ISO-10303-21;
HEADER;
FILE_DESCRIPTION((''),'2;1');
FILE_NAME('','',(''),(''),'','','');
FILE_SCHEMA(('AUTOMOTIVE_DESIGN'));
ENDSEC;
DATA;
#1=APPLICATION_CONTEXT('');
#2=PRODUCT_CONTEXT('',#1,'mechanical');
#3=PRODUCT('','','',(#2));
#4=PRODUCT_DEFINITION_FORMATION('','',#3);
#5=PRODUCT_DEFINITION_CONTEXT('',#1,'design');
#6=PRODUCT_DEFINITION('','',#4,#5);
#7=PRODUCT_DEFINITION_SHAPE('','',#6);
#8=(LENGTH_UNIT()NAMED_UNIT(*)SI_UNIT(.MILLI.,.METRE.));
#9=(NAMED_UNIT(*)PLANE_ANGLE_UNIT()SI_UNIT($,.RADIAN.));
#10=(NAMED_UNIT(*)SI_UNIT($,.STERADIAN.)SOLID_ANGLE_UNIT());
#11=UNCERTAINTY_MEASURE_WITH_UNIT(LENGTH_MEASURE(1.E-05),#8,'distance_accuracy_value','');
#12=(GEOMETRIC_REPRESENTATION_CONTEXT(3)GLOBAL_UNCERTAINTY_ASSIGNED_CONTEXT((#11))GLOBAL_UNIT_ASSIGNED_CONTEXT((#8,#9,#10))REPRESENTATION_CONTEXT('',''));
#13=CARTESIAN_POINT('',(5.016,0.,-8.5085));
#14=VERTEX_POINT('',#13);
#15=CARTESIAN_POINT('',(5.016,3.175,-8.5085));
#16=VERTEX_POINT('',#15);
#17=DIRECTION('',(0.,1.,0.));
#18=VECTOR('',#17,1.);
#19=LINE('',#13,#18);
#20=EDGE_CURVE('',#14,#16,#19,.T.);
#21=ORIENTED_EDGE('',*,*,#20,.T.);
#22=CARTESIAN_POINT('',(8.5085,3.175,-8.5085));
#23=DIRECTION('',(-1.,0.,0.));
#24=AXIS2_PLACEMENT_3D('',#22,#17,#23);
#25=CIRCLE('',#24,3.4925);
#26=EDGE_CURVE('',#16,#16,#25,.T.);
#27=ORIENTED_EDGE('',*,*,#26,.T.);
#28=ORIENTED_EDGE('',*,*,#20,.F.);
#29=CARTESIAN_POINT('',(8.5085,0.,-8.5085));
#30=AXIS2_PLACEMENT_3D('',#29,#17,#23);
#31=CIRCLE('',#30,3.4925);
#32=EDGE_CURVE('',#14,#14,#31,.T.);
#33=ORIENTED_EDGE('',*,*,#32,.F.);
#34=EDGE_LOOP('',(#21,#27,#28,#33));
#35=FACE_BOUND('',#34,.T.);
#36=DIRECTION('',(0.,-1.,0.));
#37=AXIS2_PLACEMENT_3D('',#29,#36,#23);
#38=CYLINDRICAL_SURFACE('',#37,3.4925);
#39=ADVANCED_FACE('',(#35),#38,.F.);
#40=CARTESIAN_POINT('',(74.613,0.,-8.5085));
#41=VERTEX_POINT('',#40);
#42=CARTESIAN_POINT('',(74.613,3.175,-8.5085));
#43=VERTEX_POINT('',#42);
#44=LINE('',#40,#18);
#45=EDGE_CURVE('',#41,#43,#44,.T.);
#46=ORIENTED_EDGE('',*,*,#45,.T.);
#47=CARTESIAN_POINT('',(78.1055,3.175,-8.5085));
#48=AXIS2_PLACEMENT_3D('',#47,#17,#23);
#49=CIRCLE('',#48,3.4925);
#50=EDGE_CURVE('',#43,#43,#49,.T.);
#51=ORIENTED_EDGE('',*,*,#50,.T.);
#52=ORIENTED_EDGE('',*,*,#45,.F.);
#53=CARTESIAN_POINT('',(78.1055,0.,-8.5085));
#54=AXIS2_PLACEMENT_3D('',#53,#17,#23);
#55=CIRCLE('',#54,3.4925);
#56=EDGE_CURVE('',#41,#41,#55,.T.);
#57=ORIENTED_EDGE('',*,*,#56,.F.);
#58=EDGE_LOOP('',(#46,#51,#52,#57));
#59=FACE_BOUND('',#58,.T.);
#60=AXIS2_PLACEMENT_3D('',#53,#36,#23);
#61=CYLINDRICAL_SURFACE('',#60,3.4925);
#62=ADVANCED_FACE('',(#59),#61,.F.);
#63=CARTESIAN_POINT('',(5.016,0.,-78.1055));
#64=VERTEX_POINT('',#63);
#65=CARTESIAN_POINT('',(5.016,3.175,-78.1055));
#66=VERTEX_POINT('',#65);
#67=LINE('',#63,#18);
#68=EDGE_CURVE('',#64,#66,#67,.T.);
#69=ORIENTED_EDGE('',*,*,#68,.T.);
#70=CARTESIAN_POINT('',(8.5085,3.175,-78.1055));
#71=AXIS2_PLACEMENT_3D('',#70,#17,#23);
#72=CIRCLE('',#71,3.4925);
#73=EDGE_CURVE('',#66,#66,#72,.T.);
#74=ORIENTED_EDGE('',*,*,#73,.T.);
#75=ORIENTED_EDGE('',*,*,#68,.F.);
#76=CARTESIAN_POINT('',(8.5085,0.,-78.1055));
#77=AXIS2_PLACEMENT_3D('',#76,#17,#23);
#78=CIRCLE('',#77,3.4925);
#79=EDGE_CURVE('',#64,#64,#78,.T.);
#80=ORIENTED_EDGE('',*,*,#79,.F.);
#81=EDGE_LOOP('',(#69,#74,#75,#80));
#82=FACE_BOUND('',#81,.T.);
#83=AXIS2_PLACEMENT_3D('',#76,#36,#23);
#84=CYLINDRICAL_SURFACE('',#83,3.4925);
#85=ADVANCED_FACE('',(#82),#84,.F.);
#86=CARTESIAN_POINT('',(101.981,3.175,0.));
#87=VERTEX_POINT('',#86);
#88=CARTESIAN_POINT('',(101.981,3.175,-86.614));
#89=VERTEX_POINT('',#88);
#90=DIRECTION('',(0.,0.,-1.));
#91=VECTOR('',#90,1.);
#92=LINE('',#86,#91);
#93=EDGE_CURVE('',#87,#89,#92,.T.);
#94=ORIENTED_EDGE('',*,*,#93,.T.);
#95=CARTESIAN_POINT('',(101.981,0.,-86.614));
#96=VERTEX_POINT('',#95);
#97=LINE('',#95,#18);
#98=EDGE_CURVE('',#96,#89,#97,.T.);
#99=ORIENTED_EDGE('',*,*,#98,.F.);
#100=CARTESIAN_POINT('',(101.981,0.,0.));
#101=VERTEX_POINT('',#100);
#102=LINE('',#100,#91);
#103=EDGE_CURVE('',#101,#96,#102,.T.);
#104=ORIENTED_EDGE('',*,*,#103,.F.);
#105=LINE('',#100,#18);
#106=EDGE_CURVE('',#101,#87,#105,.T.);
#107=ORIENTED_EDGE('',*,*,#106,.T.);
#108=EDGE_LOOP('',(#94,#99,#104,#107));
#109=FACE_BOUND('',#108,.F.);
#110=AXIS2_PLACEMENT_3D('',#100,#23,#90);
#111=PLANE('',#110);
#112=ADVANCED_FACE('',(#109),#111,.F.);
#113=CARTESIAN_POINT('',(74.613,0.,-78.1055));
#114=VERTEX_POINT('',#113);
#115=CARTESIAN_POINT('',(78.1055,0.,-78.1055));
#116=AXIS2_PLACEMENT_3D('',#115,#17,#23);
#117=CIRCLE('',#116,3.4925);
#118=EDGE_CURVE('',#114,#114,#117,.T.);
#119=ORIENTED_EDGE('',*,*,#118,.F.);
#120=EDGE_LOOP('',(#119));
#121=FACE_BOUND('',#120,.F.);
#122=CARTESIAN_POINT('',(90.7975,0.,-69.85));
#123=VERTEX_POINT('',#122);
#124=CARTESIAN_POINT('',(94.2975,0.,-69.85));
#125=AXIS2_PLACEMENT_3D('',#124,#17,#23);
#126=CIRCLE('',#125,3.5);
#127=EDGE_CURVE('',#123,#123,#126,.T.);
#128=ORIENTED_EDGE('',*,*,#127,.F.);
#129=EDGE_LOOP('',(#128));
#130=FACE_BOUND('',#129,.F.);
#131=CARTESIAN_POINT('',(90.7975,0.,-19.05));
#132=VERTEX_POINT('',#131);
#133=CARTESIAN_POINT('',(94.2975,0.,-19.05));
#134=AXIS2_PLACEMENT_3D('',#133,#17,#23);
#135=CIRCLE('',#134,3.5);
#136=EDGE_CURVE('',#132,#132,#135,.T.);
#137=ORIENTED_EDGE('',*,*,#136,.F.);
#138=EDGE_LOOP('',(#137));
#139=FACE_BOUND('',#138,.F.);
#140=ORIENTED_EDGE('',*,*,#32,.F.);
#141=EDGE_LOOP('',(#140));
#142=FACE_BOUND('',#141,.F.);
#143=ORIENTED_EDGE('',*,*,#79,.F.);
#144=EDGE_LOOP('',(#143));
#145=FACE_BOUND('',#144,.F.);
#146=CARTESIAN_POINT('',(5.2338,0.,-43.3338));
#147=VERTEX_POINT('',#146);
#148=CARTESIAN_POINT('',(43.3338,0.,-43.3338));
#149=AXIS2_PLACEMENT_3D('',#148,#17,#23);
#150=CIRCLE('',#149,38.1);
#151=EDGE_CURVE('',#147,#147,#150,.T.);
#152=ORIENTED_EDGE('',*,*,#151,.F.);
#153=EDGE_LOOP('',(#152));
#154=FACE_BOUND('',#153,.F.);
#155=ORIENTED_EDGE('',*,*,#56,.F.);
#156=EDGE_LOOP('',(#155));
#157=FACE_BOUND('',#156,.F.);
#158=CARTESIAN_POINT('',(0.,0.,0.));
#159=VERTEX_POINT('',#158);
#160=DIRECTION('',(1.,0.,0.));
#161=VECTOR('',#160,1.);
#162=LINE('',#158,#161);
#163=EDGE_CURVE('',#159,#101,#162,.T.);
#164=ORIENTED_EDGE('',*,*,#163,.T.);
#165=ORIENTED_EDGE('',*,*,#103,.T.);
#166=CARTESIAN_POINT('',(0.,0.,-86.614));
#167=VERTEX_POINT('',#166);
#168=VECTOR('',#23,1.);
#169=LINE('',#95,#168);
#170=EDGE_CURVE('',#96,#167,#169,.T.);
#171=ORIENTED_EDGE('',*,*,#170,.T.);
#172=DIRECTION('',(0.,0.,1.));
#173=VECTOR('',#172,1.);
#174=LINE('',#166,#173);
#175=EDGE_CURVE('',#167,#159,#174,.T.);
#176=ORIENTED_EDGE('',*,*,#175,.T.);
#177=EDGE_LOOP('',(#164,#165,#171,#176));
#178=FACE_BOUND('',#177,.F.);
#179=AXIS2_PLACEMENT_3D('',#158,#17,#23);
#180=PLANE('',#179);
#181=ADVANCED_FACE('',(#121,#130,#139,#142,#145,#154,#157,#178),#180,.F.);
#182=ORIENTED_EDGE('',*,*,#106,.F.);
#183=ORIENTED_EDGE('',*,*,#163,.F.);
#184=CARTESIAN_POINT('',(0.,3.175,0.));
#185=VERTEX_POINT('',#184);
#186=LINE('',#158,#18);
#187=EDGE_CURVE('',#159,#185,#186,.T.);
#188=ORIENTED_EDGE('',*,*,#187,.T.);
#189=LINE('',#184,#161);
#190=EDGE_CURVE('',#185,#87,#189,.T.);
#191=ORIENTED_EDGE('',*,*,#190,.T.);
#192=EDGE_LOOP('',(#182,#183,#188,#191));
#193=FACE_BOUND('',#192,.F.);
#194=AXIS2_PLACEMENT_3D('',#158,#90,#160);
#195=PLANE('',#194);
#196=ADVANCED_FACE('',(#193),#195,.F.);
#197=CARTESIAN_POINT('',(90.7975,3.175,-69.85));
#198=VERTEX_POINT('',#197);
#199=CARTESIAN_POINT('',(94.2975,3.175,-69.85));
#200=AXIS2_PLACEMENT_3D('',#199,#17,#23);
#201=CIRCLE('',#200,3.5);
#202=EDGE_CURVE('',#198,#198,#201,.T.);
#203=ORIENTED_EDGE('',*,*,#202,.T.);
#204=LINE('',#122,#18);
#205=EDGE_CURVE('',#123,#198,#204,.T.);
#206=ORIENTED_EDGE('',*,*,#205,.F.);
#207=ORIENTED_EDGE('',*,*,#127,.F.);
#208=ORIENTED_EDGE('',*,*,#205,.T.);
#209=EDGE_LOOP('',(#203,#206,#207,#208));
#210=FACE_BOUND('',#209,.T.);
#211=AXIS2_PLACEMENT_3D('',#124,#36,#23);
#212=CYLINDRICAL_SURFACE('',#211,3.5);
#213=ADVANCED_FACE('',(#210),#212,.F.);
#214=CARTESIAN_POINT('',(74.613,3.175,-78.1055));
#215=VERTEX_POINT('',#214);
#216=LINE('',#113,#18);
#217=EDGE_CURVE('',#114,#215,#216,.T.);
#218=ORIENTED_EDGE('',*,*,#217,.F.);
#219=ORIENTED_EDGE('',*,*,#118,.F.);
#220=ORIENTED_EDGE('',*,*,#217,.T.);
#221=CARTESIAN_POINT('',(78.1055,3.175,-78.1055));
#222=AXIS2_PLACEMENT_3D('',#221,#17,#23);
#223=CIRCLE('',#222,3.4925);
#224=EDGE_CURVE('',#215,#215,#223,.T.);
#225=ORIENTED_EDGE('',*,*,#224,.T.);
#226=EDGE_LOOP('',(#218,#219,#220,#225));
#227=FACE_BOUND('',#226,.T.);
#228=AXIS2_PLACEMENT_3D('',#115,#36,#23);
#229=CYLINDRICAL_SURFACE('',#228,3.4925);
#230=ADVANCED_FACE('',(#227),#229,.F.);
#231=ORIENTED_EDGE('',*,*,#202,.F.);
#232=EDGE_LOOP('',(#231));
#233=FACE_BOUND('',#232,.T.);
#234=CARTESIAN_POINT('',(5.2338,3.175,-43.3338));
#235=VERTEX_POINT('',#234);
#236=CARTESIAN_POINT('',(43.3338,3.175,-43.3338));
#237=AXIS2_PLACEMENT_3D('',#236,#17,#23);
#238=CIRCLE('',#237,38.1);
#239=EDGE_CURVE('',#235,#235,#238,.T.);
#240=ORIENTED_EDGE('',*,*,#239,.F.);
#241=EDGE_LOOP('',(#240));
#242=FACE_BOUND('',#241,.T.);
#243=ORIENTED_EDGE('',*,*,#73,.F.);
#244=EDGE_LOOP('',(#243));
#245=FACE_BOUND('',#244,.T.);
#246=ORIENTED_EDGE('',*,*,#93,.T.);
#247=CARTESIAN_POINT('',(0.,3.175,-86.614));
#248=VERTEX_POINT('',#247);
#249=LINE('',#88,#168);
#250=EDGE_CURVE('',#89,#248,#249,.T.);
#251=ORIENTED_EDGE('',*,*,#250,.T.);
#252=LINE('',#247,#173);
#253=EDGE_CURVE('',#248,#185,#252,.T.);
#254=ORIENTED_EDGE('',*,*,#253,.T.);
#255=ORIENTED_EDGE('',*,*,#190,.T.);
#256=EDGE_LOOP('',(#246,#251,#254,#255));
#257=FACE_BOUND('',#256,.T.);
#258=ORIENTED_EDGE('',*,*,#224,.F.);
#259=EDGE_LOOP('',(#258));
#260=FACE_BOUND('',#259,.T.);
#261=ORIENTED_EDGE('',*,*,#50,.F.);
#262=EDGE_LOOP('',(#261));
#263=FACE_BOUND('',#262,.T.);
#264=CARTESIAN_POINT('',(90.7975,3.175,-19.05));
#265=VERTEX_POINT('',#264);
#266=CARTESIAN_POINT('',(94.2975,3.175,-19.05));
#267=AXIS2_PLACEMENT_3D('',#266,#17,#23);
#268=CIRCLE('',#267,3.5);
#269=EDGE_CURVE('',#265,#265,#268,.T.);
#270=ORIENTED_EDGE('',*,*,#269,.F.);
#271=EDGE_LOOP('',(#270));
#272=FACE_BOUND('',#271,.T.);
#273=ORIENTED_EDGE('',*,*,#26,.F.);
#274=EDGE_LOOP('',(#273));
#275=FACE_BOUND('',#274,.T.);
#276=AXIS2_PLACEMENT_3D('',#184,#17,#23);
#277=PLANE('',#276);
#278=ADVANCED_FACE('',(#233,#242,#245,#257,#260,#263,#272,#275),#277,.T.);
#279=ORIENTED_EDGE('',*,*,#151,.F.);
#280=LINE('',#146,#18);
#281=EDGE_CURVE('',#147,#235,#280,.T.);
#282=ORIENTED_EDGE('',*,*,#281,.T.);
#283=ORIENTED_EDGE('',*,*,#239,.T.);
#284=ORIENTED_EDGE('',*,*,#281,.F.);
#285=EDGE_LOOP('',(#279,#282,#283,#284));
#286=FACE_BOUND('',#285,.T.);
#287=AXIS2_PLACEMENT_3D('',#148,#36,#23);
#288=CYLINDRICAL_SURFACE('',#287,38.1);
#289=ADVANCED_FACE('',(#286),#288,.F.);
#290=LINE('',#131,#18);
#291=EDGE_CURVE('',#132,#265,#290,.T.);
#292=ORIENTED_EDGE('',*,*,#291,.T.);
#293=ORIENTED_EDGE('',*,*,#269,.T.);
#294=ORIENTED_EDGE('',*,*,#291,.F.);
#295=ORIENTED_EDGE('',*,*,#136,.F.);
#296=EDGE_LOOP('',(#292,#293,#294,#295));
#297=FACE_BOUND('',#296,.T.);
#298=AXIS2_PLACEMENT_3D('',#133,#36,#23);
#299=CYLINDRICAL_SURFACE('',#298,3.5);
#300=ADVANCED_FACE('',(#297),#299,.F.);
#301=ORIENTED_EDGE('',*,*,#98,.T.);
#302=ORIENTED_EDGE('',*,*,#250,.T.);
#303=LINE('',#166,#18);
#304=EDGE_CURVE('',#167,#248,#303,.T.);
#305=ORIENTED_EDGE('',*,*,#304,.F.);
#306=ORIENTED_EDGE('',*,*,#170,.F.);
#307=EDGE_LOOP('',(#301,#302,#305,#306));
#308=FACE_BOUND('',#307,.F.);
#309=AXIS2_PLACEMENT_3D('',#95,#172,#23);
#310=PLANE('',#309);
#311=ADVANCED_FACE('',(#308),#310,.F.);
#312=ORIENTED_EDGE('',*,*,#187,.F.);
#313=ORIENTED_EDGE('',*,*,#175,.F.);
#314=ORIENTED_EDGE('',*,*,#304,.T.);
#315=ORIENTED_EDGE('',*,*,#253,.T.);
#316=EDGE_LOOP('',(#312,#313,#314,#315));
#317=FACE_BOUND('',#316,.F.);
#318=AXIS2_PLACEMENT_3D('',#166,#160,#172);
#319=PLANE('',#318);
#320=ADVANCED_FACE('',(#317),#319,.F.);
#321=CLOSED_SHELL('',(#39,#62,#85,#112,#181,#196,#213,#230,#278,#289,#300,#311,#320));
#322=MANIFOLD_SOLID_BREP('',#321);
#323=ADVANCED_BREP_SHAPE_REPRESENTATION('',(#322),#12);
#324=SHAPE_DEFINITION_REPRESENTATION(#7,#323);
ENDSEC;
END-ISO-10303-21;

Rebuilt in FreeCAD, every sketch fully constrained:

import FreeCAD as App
import Part
import Sketcher

V = App.Vector
Q = App.Units.Quantity

doc = App.newDocument("Part")
params = doc.addObject("Spreadsheet::Sheet", "Params")
for row, (alias, value) in enumerate([
    ("sketch1_diameter", "3 in"),
    ("sketch1_diameter2", "0.275 in"),
    ("sketch1_height", "3.41 in"),
    ("sketch1_width", "4.015 in"),
    ("pad1_length", "0.125 in"),
], start=1):
    params.set(f"A{row}", alias)
    params.set(f"B{row}", "=" + value)
    params.setAlias(f"B{row}", alias)

body = doc.addObject("PartDesign::Body", "Body")

# Sketch on XZ plane
sketch1 = doc.addObject("Sketcher::SketchObject", "Sketch")
body.addObject(sketch1)
sketch1.AttachmentSupport = (doc.XZ_Plane, [""])
sketch1.MapMode = "FlatFace"
sketch1.addGeometry([
    Part.LineSegment(V(0, -86.6, 0), V(0, 0, 0)),  # 0
    Part.LineSegment(V(0, 0, 0), V(102, 0, 0)),  # 1
    Part.LineSegment(V(102, 0, 0), V(102, -86.6, 0)),  # 2
    Part.LineSegment(V(102, -86.6, 0), V(0, -86.6, 0)),  # 3
    Part.Circle(V(78.1, -78.1, 0), V(0, 0, 1), 3.5),  # 4
    Part.Circle(V(94.3, -69.8, 0), V(0, 0, 1), 3.5),  # 5
    Part.Circle(V(8.5, -78.1, 0), V(0, 0, 1), 3.5),  # 6
    Part.Circle(V(43.3, -43.3, 0), V(0, 0, 1), 38.1),  # 7
    Part.Circle(V(94.3, -19.1, 0), V(0, 0, 1), 3.5),  # 8
    Part.Circle(V(78.1, -8.5, 0), V(0, 0, 1), 3.5),  # 9
    Part.Circle(V(8.5, -8.5, 0), V(0, 0, 1), 3.5),  # 10
], False)
sketch1.addConstraint([
    Sketcher.Constraint("Coincident", 0, 2, 1, 1),
    Sketcher.Constraint("Coincident", 1, 2, 2, 1),
    Sketcher.Constraint("Coincident", 2, 2, 3, 1),
    Sketcher.Constraint("Coincident", 3, 2, 0, 1),
    Sketcher.Constraint("Vertical", 0),
    Sketcher.Constraint("Horizontal", 1),
    Sketcher.Constraint("Vertical", 2),
    Sketcher.Constraint("Horizontal", 3),
    Sketcher.Constraint("Coincident", 0, 2, -1, 1),
    Sketcher.Constraint("Equal", 4, 6),
    Sketcher.Constraint("Equal", 5, 8),
    Sketcher.Constraint("Equal", 6, 9),
    Sketcher.Constraint("Equal", 9, 10),
    Sketcher.Constraint("Horizontal", 4, 3, 6, 3),
    Sketcher.Constraint("Horizontal", 9, 3, 10, 3),
    Sketcher.Constraint("Vertical", 5, 3, 8, 3),
    Sketcher.Constraint("Vertical", 4, 3, 9, 3),
    Sketcher.Constraint("Vertical", 6, 3, 10, 3),
    Sketcher.Constraint("Diameter", 7, Q("3 in")),
    Sketcher.Constraint("Diameter", 4, Q("0.275 in")),
    Sketcher.Constraint("DistanceY", 5, 3, 8, 3, Q("2 in")),
    Sketcher.Constraint("Diameter", 5, Q("0.2756 in")),
    Sketcher.Constraint("DistanceY", 0, 1, 0, 2, Q("3.41 in")),
    Sketcher.Constraint("DistanceX", 1, 1, 1, 2, Q("4.015 in")),
    Sketcher.Constraint("DistanceY", 8, 3, -1, 1, Q("0.75 in")),
    Sketcher.Constraint("DistanceX", 8, 3, 1, 2, Q("0.3025 in")),
    Sketcher.Constraint("DistanceX", -1, 1, 6, 3, 8.5085),
    Sketcher.Constraint("DistanceX", -1, 1, 7, 3, 43.3338),
    Sketcher.Constraint("DistanceY", 7, 3, -1, 1, 43.3338),
    Sketcher.Constraint("DistanceY", 9, 3, -1, 1, 8.5085),
    Sketcher.Constraint("DistanceX", 6, 3, 4, 3, 69.597),
    Sketcher.Constraint("DistanceY", 4, 3, 9, 3, 69.597),
])
sketch1.setExpression("Constraints[18]", "Params.sketch1_diameter")
sketch1.setExpression("Constraints[19]", "Params.sketch1_diameter2")
sketch1.setExpression("Constraints[22]", "Params.sketch1_height")
sketch1.setExpression("Constraints[23]", "Params.sketch1_width")
pad1 = doc.addObject("PartDesign::Pad", "Pad")
body.addObject(pad1)
pad1.Profile = sketch1
pad1.setExpression("Length", "Params.pad1_length")
pad1.Reversed = True

doc.recompute()
